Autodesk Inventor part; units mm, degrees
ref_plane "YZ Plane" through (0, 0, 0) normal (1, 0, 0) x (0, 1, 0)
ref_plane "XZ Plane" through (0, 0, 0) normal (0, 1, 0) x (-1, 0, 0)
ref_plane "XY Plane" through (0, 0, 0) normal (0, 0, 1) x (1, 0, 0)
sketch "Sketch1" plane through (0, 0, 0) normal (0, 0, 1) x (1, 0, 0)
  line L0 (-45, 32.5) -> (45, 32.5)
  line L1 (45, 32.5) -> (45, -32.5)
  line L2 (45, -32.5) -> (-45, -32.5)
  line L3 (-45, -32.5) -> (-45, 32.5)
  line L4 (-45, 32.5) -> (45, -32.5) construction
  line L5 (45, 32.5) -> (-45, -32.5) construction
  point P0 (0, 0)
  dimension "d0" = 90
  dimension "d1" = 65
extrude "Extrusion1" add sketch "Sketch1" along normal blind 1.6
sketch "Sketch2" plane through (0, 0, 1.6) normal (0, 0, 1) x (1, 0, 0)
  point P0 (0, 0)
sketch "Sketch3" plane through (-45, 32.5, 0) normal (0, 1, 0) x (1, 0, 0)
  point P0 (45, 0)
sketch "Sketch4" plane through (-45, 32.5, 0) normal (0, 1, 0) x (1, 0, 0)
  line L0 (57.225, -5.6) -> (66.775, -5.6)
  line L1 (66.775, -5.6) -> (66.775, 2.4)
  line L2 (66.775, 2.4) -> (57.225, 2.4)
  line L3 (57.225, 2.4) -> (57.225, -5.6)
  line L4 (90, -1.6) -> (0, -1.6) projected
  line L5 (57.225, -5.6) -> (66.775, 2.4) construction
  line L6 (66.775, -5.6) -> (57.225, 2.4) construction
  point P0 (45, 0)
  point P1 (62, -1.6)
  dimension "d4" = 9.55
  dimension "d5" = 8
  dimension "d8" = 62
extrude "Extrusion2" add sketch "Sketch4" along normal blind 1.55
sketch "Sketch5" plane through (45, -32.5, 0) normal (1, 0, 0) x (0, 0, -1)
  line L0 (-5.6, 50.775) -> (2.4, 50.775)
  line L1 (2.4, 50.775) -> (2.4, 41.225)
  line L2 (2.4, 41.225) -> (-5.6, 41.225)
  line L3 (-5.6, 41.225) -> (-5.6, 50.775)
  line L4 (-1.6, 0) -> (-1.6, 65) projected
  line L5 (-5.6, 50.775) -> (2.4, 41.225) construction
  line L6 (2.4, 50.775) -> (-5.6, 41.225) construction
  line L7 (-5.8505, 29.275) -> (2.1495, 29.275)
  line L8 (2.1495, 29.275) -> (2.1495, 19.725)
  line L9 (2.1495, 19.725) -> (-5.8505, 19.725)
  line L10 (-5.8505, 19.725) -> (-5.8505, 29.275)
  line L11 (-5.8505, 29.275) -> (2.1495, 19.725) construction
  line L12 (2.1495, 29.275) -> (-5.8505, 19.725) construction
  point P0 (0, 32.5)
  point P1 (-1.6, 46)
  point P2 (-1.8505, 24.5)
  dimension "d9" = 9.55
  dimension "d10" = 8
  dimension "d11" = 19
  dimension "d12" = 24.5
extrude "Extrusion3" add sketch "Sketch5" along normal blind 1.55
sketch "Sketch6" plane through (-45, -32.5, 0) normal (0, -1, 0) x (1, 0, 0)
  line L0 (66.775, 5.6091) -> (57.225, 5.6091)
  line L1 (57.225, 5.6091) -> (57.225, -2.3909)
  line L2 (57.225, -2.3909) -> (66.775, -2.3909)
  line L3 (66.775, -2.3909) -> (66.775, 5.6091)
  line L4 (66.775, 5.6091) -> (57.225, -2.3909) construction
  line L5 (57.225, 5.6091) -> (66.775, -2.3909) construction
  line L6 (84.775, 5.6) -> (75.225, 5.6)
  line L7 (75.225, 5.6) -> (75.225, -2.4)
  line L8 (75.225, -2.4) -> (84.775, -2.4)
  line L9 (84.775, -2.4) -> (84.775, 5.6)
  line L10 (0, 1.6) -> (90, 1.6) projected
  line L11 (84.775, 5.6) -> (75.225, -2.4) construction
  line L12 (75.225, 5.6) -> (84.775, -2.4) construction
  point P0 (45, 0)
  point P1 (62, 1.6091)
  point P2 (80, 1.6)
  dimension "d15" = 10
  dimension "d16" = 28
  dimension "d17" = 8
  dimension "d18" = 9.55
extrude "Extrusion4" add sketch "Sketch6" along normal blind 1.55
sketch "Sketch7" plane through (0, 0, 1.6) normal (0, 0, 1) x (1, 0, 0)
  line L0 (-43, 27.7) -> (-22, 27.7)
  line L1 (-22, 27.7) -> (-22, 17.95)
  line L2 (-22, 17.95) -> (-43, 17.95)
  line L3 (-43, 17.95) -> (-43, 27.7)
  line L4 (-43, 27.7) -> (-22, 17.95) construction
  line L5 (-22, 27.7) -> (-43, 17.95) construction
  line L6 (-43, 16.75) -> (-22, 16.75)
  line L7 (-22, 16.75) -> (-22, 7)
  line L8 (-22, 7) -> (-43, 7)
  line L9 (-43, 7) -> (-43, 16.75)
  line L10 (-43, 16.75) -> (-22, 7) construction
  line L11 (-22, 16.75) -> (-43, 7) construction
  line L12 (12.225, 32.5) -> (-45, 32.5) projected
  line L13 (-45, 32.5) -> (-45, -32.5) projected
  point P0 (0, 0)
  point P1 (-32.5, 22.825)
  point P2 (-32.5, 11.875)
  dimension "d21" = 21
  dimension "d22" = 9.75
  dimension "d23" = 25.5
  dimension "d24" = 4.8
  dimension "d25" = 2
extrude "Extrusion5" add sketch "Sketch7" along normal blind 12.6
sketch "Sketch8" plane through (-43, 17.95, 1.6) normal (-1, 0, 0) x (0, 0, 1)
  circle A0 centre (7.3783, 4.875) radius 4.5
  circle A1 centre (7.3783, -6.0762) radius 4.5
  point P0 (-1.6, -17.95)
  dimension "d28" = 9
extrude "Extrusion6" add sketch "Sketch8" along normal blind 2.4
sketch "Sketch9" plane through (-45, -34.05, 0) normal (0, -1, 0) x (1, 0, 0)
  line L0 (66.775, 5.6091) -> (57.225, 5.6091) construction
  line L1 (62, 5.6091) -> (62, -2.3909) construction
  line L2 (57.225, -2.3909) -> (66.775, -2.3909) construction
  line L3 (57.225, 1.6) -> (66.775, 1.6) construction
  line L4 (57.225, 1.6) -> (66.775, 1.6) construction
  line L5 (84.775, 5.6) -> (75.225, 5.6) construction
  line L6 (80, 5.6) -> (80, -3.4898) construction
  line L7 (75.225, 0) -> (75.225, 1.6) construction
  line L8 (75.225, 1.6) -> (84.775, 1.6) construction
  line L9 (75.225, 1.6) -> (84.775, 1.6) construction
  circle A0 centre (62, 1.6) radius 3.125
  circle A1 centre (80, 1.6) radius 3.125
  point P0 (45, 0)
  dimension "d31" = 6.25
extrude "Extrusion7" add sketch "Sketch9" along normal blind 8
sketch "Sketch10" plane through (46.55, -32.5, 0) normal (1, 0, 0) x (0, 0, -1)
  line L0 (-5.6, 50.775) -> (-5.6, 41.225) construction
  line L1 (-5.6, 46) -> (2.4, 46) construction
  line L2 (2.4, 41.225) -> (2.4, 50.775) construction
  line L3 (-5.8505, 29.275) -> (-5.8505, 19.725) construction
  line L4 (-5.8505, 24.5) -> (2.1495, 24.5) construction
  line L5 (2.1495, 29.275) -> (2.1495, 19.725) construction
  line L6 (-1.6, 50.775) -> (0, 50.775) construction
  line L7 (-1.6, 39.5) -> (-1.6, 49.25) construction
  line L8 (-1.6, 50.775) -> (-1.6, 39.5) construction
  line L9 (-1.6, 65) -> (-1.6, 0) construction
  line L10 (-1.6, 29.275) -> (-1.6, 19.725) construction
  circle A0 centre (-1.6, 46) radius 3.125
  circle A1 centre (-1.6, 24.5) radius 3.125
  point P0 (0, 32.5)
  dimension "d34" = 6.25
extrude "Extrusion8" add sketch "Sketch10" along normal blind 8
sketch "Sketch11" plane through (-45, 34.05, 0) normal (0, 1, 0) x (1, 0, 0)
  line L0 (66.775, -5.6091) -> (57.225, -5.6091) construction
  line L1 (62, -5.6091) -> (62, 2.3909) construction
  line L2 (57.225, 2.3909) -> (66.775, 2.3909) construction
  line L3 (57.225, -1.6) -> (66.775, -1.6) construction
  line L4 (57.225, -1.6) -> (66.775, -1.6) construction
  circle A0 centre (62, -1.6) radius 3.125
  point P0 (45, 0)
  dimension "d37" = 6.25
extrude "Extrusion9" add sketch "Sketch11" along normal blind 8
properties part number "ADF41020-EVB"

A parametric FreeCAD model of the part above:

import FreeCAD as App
import Part
import Sketcher
Q = App.Units.Quantity

doc = App.newDocument("Part")
body = doc.addObject("PartDesign::Body", "Body")

# Sketch on XY plane
sketch1 = doc.addObject("Sketcher::SketchObject", "Sketch")
body.addObject(sketch1)
sketch1.AttachmentSupport = (doc.XY_Plane, [""])
sketch1.MapMode = "FlatFace"
sketch1.addGeometry([
    Part.LineSegment(App.Vector(45, 32, 0), App.Vector(-45, 32, 0)),
    Part.LineSegment(App.Vector(-45, 32, 0), App.Vector(-45, -32, 0)),
    Part.LineSegment(App.Vector(-45, -32, 0), App.Vector(45, -32, 0)),
    Part.LineSegment(App.Vector(45, -32, 0), App.Vector(45, 32, 0)),
], False)
sketch1.addConstraint([
    Sketcher.Constraint("Coincident", 0, 2, 1, 1),
    Sketcher.Constraint("Coincident", 1, 2, 2, 1),
    Sketcher.Constraint("Coincident", 2, 2, 3, 1),
    Sketcher.Constraint("Coincident", 3, 2, 0, 1),
    Sketcher.Constraint("Horizontal", 0),
    Sketcher.Constraint("Vertical", 1),
    Sketcher.Constraint("Horizontal", 2),
    Sketcher.Constraint("Vertical", 3),
    Sketcher.Constraint("Symmetric", 0, 2, 2, 2, -1, 1),
    Sketcher.Constraint("DistanceX", 0, 2, 0, 1, Q("90 mm")),
    Sketcher.Constraint("DistanceY", 1, 2, 1, 1, Q("65 mm")),
])
pad1 = doc.addObject("PartDesign::Pad", "Pad")
body.addObject(pad1)
pad1.Profile = sketch1
pad1.Length = 1.6

# Sketch on XZ plane
sketch2 = doc.addObject("Sketcher::SketchObject", "Sketch001")
body.addObject(sketch2)
sketch2.AttachmentSupport = (doc.XZ_Plane, [""])
sketch2.MapMode = "FlatFace"
sketch2.AttachmentOffset = App.Placement(App.Vector(0, 0, -32.5), App.Rotation())
sketch2.addGeometry([
    Part.LineSegment(App.Vector(12, 6, 0), App.Vector(22, 6, 0)),
    Part.LineSegment(App.Vector(22, 6, 0), App.Vector(22, -2, 0)),
    Part.LineSegment(App.Vector(22, -2, 0), App.Vector(12, -2, 0)),
    Part.LineSegment(App.Vector(12, -2, 0), App.Vector(12, 6, 0)),
], False)
sketch2.addConstraint([
    Sketcher.Constraint("Coincident", 0, 2, 1, 1),
    Sketcher.Constraint("Coincident", 1, 2, 2, 1),
    Sketcher.Constraint("Coincident", 2, 2, 3, 1),
    Sketcher.Constraint("Coincident", 3, 2, 0, 1),
    Sketcher.Constraint("Horizontal", 0),
    Sketcher.Constraint("Vertical", 1),
    Sketcher.Constraint("Horizontal", 2),
    Sketcher.Constraint("Vertical", 3),
    Sketcher.Constraint("DistanceY", 1, 2, 1, 1, Q("8 mm")),
    Sketcher.Constraint("DistanceX", 0, 1, 0, 2, Q("9.55 mm")),
    Sketcher.Constraint("DistanceY", -1, 1, 0, 2, Q("5.6 mm")),
    Sketcher.Constraint("DistanceX", -1, 1, 0, 2, Q("21.775 mm")),
])
pad2 = doc.addObject("PartDesign::Pad", "Pad001")
body.addObject(pad2)
pad2.Profile = sketch2
pad2.Length = 1.55
pad2.Reversed = True

# Sketch on YZ plane
sketch3 = doc.addObject("Sketcher::SketchObject", "Sketch002")
body.addObject(sketch3)
sketch3.AttachmentSupport = (doc.YZ_Plane, [""])
sketch3.MapMode = "FlatFace"
sketch3.AttachmentOffset = App.Placement(App.Vector(0, 0, 45), App.Rotation())
sketch3.addGeometry([
    Part.LineSegment(App.Vector(-3, -2, 0), App.Vector(-3, 6, 0)),  # 0
    Part.LineSegment(App.Vector(-3, 6, 0), App.Vector(-13, 6, 0)),  # 1
    Part.LineSegment(App.Vector(-13, 6, 0), App.Vector(-13, -2, 0)),  # 2
    Part.LineSegment(App.Vector(-13, -2, 0), App.Vector(-3, -2, 0)),  # 3
    Part.LineSegment(App.Vector(18, 6, 0), App.Vector(9, 6, 0)),  # 4
    Part.LineSegment(App.Vector(9, 6, 0), App.Vector(9, -2, 0)),  # 5
    Part.LineSegment(App.Vector(9, -2, 0), App.Vector(18, -2, 0)),  # 6
    Part.LineSegment(App.Vector(18, -2, 0), App.Vector(18, 6, 0)),  # 7
], False)
sketch3.addConstraint([
    Sketcher.Constraint("Coincident", 0, 2, 1, 1),
    Sketcher.Constraint("Coincident", 1, 2, 2, 1),
    Sketcher.Constraint("Coincident", 2, 2, 3, 1),
    Sketcher.Constraint("Coincident", 3, 2, 0, 1),
    Sketcher.Constraint("Coincident", 4, 2, 5, 1),
    Sketcher.Constraint("Coincident", 5, 2, 6, 1),
    Sketcher.Constraint("Coincident", 6, 2, 7, 1),
    Sketcher.Constraint("Coincident", 7, 2, 4, 1),
    Sketcher.Constraint("Vertical", 0),
    Sketcher.Constraint("Horizontal", 1),
    Sketcher.Constraint("Vertical", 2),
    Sketcher.Constraint("Horizontal", 3),
    Sketcher.Constraint("Horizontal", 4),
    Sketcher.Constraint("Vertical", 5),
    Sketcher.Constraint("Horizontal", 6),
    Sketcher.Constraint("Vertical", 7),
    Sketcher.Constraint("Equal", 3, 4),
    Sketcher.Constraint("Equal", 2, 5),
    Sketcher.Constraint("DistanceY", 0, 1, 0, 2, Q("8 mm")),
    Sketcher.Constraint("DistanceX", 1, 2, 1, 1, Q("9.55 mm")),
    Sketcher.Constraint("DistanceY", -1, 1, 4, 2, Q("5.6 mm")),
    Sketcher.Constraint("DistanceX", 1, 2, 4, 2, Q("21.5 mm")),
    Sketcher.Constraint("DistanceX", 0, 2, -1, 1, Q("3.225 mm")),
    Sketcher.Constraint("DistanceY", -1, 1, 0, 2, Q("5.8505 mm")),
])
pad3 = doc.addObject("PartDesign::Pad", "Pad002")
body.addObject(pad3)
pad3.Profile = sketch3
pad3.Length = 1.55

# Sketch on XZ plane
sketch4 = doc.addObject("Sketcher::SketchObject", "Sketch003")
body.addObject(sketch4)
sketch4.AttachmentSupport = (doc.XZ_Plane, [""])
sketch4.MapMode = "FlatFace"
sketch4.AttachmentOffset = App.Placement(App.Vector(0, 0, 32.5), App.Rotation())
sketch4.addGeometry([
    Part.LineSegment(App.Vector(22, 6, 0), App.Vector(12, 6, 0)),  # 0
    Part.LineSegment(App.Vector(12, 6, 0), App.Vector(12, -2, 0)),  # 1
    Part.LineSegment(App.Vector(12, -2, 0), App.Vector(22, -2, 0)),  # 2
    Part.LineSegment(App.Vector(22, -2, 0), App.Vector(22, 6, 0)),  # 3
    Part.LineSegment(App.Vector(30, 6, 0), App.Vector(30, -2, 0)),  # 4
    Part.LineSegment(App.Vector(30, -2, 0), App.Vector(40, -2, 0)),  # 5
    Part.LineSegment(App.Vector(40, -2, 0), App.Vector(40, 6, 0)),  # 6
    Part.LineSegment(App.Vector(40, 6, 0), App.Vector(30, 6, 0)),  # 7
], False)
sketch4.addConstraint([
    Sketcher.Constraint("Coincident", 0, 2, 1, 1),
    Sketcher.Constraint("Coincident", 1, 2, 2, 1),
    Sketcher.Constraint("Coincident", 2, 2, 3, 1),
    Sketcher.Constraint("Coincident", 3, 2, 0, 1),
    Sketcher.Constraint("Coincident", 4, 2, 5, 1),
    Sketcher.Constraint("Coincident", 5, 2, 6, 1),
    Sketcher.Constraint("Coincident", 6, 2, 7, 1),
    Sketcher.Constraint("Coincident", 7, 2, 4, 1),
    Sketcher.Constraint("Horizontal", 0),
    Sketcher.Constraint("Vertical", 1),
    Sketcher.Constraint("Horizontal", 2),
    Sketcher.Constraint("Vertical", 3),
    Sketcher.Constraint("Vertical", 4),
    Sketcher.Constraint("Horizontal", 5),
    Sketcher.Constraint("Vertical", 6),
    Sketcher.Constraint("Horizontal", 7),
    Sketcher.Constraint("Equal", 2, 5),
    Sketcher.Constraint("Equal", 3, 4),
    Sketcher.Constraint("DistanceY", 1, 2, 1, 1, Q("8 mm")),
    Sketcher.Constraint("DistanceX", 0, 2, 0, 1, Q("9.55 mm")),
    Sketcher.Constraint("DistanceX", 1, 2, 4, 2, Q("18 mm")),
    Sketcher.Constraint("DistanceY", 4, 2, -1, 1, Q("2.4 mm")),
    Sketcher.Constraint("DistanceX", -1, 1, 0, 2, Q("12.225 mm")),
    Sketcher.Constraint("DistanceY", -1, 1, 0, 2, Q("5.609 mm")),
])
pad4 = doc.addObject("PartDesign::Pad", "Pad003")
body.addObject(pad4)
pad4.Profile = sketch4
pad4.Length = 1.55

# Sketch on XY plane
sketch5 = doc.addObject("Sketcher::SketchObject", "Sketch004")
body.addObject(sketch5)
sketch5.AttachmentSupport = (doc.XY_Plane, [""])
sketch5.MapMode = "FlatFace"
sketch5.AttachmentOffset = App.Placement(App.Vector(0, 0, 1.6), App.Rotation())
sketch5.addGeometry([
    Part.LineSegment(App.Vector(-22, 28, 0), App.Vector(-43, 28, 0)),  # 0
    Part.LineSegment(App.Vector(-43, 28, 0), App.Vector(-43, 18, 0)),  # 1
    Part.LineSegment(App.Vector(-43, 18, 0), App.Vector(-22, 18, 0)),  # 2
    Part.LineSegment(App.Vector(-22, 18, 0), App.Vector(-22, 28, 0)),  # 3
    Part.LineSegment(App.Vector(-22, 17, 0), App.Vector(-43, 17, 0)),  # 4
    Part.LineSegment(App.Vector(-43, 17, 0), App.Vector(-43, 7, 0)),  # 5
    Part.LineSegment(App.Vector(-43, 7, 0), App.Vector(-22, 7, 0)),  # 6
    Part.LineSegment(App.Vector(-22, 7, 0), App.Vector(-22, 17, 0)),  # 7
], False)
sketch5.addConstraint([
    Sketcher.Constraint("Coincident", 0, 2, 1, 1),
    Sketcher.Constraint("Coincident", 1, 2, 2, 1),
    Sketcher.Constraint("Coincident", 2, 2, 3, 1),
    Sketcher.Constraint("Coincident", 3, 2, 0, 1),
    Sketcher.Constraint("Coincident", 4, 2, 5, 1),
    Sketcher.Constraint("Coincident", 5, 2, 6, 1),
    Sketcher.Constraint("Coincident", 6, 2, 7, 1),
    Sketcher.Constraint("Coincident", 7, 2, 4, 1),
    Sketcher.Constraint("Horizontal", 0),
    Sketcher.Constraint("Vertical", 1),
    Sketcher.Constraint("Horizontal", 2),
    Sketcher.Constraint("Vertical", 3),
    Sketcher.Constraint("Horizontal", 4),
    Sketcher.Constraint("Vertical", 5),
    Sketcher.Constraint("Horizontal", 6),
    Sketcher.Constraint("Vertical", 7),
    Sketcher.Constraint("Vertical", 1, 2, 4, 2),
    Sketcher.Constraint("Vertical", 3, 2, 6, 2),
    Sketcher.Constraint("Equal", 3, 5),
    Sketcher.Constraint("DistanceX", 0, 2, 0, 1, Q("21 mm")),
    Sketcher.Constraint("DistanceY", 1, 2, 1, 1, Q("9.75 mm")),
    Sketcher.Constraint("DistanceX", 0, 2, -1, 1, Q("43 mm")),
    Sketcher.Constraint("DistanceY", -1, 1, 5, 2, Q("7 mm")),
    Sketcher.Constraint("DistanceY", -1, 1, 0, 2, Q("27.7 mm")),
])
pad5 = doc.addObject("PartDesign::Pad", "Pad004")
body.addObject(pad5)
pad5.Profile = sketch5
pad5.Length = 12.6

# Sketch on YZ plane
sketch6 = doc.addObject("Sketcher::SketchObject", "Sketch005")
body.addObject(sketch6)
sketch6.AttachmentSupport = (doc.YZ_Plane, [""])
sketch6.MapMode = "FlatFace"
sketch6.AttachmentOffset = App.Placement(App.Vector(0, 0, -43), App.Rotation())
sketch6.addGeometry([
    Part.Circle(App.Vector(22.8, 9, 0), App.Vector(0, 0, 1), 4.5),
    Part.Circle(App.Vector(11.9, 9, 0), App.Vector(0, 0, 1), 4.5),
], False)
sketch6.addConstraint([
    Sketcher.Constraint("Equal", 0, 1),
    Sketcher.Constraint("Horizontal", 0, 3, 1, 3),
    Sketcher.Constraint("Diameter", 0, Q("9 mm")),
    Sketcher.Constraint("DistanceX", -1, 1, 0, 3, Q("22.825 mm")),
    Sketcher.Constraint("DistanceY", -1, 1, 0, 3, Q("8.9783 mm")),
    Sketcher.Constraint("DistanceX", -1, 1, 1, 3, Q("11.8738 mm")),
])
pad6 = doc.addObject("PartDesign::Pad", "Pad005")
body.addObject(pad6)
pad6.Profile = sketch6
pad6.Length = 2.4
pad6.Reversed = True

# Sketch on XZ plane
sketch7 = doc.addObject("Sketcher::SketchObject", "Sketch006")
body.addObject(sketch7)
sketch7.AttachmentSupport = (doc.XZ_Plane, [""])
sketch7.MapMode = "FlatFace"
sketch7.AttachmentOffset = App.Placement(App.Vector(0, 0, 34.05), App.Rotation())
sketch7.addGeometry([
    Part.Circle(App.Vector(17, 1.6, 0), App.Vector(0, 0, 1), 3.1),
    Part.Circle(App.Vector(35, 1.6, 0), App.Vector(0, 0, 1), 3.1),
], False)
sketch7.addConstraint([
    Sketcher.Constraint("Equal", 0, 1),
    Sketcher.Constraint("Horizontal", 0, 3, 1, 3),
    Sketcher.Constraint("Diameter", 0, Q("6.25 mm")),
    Sketcher.Constraint("DistanceX", -1, 1, 0, 3, Q("17 mm")),
    Sketcher.Constraint("DistanceX", -1, 1, 1, 3, Q("35 mm")),
    Sketcher.Constraint("DistanceY", -1, 1, 0, 3, Q("1.6 mm")),
])
pad7 = doc.addObject("PartDesign::Pad", "Pad006")
body.addObject(pad7)
pad7.Profile = sketch7
pad7.Length = 8

# Sketch on YZ plane
sketch8 = doc.addObject("Sketcher::SketchObject", "Sketch007")
body.addObject(sketch8)
sketch8.AttachmentSupport = (doc.YZ_Plane, [""])
sketch8.MapMode = "FlatFace"
sketch8.AttachmentOffset = App.Placement(App.Vector(0, 0, 46.55), App.Rotation())
sketch8.addGeometry([
    Part.Circle(App.Vector(13.5, 1.6, 0), App.Vector(0, 0, 1), 3.1),
    Part.Circle(App.Vector(-8, 1.6, 0), App.Vector(0, 0, 1), 3.1),
], False)
sketch8.addConstraint([
    Sketcher.Constraint("Equal", 0, 1),
    Sketcher.Constraint("Horizontal", 0, 3, 1, 3),
    Sketcher.Constraint("Diameter", 0, Q("6.25 mm")),
    Sketcher.Constraint("DistanceX", 1, 3, -1, 1, Q("8 mm")),
    Sketcher.Constraint("DistanceX", -1, 1, 0, 3, Q("13.5 mm")),
    Sketcher.Constraint("DistanceY", -1, 1, 0, 3, Q("1.6 mm")),
])
pad8 = doc.addObject("PartDesign::Pad", "Pad007")
body.addObject(pad8)
pad8.Profile = sketch8
pad8.Length = 8

# Sketch on XZ plane
sketch9 = doc.addObject("Sketcher::SketchObject", "Sketch008")
body.addObject(sketch9)
sketch9.AttachmentSupport = (doc.XZ_Plane, [""])
sketch9.MapMode = "FlatFace"
sketch9.AttachmentOffset = App.Placement(App.Vector(0, 0, -34.05), App.Rotation())
sketch9.addGeometry(Part.Circle(App.Vector(17, 1.6, 0), App.Vector(0, 0, 1), 3.1), False)
sketch9.addConstraint([
    Sketcher.Constraint("Diameter", 0, Q("6.25 mm")),
    Sketcher.Constraint("DistanceX", -1, 1, 0, 3, Q("17 mm")),
    Sketcher.Constraint("DistanceY", -1, 1, 0, 3, Q("1.6 mm")),
])
pad9 = doc.addObject("PartDesign::Pad", "Pad008")
body.addObject(pad9)
pad9.Profile = sketch9
pad9.Length = 8
pad9.Reversed = True

doc.recompute()
